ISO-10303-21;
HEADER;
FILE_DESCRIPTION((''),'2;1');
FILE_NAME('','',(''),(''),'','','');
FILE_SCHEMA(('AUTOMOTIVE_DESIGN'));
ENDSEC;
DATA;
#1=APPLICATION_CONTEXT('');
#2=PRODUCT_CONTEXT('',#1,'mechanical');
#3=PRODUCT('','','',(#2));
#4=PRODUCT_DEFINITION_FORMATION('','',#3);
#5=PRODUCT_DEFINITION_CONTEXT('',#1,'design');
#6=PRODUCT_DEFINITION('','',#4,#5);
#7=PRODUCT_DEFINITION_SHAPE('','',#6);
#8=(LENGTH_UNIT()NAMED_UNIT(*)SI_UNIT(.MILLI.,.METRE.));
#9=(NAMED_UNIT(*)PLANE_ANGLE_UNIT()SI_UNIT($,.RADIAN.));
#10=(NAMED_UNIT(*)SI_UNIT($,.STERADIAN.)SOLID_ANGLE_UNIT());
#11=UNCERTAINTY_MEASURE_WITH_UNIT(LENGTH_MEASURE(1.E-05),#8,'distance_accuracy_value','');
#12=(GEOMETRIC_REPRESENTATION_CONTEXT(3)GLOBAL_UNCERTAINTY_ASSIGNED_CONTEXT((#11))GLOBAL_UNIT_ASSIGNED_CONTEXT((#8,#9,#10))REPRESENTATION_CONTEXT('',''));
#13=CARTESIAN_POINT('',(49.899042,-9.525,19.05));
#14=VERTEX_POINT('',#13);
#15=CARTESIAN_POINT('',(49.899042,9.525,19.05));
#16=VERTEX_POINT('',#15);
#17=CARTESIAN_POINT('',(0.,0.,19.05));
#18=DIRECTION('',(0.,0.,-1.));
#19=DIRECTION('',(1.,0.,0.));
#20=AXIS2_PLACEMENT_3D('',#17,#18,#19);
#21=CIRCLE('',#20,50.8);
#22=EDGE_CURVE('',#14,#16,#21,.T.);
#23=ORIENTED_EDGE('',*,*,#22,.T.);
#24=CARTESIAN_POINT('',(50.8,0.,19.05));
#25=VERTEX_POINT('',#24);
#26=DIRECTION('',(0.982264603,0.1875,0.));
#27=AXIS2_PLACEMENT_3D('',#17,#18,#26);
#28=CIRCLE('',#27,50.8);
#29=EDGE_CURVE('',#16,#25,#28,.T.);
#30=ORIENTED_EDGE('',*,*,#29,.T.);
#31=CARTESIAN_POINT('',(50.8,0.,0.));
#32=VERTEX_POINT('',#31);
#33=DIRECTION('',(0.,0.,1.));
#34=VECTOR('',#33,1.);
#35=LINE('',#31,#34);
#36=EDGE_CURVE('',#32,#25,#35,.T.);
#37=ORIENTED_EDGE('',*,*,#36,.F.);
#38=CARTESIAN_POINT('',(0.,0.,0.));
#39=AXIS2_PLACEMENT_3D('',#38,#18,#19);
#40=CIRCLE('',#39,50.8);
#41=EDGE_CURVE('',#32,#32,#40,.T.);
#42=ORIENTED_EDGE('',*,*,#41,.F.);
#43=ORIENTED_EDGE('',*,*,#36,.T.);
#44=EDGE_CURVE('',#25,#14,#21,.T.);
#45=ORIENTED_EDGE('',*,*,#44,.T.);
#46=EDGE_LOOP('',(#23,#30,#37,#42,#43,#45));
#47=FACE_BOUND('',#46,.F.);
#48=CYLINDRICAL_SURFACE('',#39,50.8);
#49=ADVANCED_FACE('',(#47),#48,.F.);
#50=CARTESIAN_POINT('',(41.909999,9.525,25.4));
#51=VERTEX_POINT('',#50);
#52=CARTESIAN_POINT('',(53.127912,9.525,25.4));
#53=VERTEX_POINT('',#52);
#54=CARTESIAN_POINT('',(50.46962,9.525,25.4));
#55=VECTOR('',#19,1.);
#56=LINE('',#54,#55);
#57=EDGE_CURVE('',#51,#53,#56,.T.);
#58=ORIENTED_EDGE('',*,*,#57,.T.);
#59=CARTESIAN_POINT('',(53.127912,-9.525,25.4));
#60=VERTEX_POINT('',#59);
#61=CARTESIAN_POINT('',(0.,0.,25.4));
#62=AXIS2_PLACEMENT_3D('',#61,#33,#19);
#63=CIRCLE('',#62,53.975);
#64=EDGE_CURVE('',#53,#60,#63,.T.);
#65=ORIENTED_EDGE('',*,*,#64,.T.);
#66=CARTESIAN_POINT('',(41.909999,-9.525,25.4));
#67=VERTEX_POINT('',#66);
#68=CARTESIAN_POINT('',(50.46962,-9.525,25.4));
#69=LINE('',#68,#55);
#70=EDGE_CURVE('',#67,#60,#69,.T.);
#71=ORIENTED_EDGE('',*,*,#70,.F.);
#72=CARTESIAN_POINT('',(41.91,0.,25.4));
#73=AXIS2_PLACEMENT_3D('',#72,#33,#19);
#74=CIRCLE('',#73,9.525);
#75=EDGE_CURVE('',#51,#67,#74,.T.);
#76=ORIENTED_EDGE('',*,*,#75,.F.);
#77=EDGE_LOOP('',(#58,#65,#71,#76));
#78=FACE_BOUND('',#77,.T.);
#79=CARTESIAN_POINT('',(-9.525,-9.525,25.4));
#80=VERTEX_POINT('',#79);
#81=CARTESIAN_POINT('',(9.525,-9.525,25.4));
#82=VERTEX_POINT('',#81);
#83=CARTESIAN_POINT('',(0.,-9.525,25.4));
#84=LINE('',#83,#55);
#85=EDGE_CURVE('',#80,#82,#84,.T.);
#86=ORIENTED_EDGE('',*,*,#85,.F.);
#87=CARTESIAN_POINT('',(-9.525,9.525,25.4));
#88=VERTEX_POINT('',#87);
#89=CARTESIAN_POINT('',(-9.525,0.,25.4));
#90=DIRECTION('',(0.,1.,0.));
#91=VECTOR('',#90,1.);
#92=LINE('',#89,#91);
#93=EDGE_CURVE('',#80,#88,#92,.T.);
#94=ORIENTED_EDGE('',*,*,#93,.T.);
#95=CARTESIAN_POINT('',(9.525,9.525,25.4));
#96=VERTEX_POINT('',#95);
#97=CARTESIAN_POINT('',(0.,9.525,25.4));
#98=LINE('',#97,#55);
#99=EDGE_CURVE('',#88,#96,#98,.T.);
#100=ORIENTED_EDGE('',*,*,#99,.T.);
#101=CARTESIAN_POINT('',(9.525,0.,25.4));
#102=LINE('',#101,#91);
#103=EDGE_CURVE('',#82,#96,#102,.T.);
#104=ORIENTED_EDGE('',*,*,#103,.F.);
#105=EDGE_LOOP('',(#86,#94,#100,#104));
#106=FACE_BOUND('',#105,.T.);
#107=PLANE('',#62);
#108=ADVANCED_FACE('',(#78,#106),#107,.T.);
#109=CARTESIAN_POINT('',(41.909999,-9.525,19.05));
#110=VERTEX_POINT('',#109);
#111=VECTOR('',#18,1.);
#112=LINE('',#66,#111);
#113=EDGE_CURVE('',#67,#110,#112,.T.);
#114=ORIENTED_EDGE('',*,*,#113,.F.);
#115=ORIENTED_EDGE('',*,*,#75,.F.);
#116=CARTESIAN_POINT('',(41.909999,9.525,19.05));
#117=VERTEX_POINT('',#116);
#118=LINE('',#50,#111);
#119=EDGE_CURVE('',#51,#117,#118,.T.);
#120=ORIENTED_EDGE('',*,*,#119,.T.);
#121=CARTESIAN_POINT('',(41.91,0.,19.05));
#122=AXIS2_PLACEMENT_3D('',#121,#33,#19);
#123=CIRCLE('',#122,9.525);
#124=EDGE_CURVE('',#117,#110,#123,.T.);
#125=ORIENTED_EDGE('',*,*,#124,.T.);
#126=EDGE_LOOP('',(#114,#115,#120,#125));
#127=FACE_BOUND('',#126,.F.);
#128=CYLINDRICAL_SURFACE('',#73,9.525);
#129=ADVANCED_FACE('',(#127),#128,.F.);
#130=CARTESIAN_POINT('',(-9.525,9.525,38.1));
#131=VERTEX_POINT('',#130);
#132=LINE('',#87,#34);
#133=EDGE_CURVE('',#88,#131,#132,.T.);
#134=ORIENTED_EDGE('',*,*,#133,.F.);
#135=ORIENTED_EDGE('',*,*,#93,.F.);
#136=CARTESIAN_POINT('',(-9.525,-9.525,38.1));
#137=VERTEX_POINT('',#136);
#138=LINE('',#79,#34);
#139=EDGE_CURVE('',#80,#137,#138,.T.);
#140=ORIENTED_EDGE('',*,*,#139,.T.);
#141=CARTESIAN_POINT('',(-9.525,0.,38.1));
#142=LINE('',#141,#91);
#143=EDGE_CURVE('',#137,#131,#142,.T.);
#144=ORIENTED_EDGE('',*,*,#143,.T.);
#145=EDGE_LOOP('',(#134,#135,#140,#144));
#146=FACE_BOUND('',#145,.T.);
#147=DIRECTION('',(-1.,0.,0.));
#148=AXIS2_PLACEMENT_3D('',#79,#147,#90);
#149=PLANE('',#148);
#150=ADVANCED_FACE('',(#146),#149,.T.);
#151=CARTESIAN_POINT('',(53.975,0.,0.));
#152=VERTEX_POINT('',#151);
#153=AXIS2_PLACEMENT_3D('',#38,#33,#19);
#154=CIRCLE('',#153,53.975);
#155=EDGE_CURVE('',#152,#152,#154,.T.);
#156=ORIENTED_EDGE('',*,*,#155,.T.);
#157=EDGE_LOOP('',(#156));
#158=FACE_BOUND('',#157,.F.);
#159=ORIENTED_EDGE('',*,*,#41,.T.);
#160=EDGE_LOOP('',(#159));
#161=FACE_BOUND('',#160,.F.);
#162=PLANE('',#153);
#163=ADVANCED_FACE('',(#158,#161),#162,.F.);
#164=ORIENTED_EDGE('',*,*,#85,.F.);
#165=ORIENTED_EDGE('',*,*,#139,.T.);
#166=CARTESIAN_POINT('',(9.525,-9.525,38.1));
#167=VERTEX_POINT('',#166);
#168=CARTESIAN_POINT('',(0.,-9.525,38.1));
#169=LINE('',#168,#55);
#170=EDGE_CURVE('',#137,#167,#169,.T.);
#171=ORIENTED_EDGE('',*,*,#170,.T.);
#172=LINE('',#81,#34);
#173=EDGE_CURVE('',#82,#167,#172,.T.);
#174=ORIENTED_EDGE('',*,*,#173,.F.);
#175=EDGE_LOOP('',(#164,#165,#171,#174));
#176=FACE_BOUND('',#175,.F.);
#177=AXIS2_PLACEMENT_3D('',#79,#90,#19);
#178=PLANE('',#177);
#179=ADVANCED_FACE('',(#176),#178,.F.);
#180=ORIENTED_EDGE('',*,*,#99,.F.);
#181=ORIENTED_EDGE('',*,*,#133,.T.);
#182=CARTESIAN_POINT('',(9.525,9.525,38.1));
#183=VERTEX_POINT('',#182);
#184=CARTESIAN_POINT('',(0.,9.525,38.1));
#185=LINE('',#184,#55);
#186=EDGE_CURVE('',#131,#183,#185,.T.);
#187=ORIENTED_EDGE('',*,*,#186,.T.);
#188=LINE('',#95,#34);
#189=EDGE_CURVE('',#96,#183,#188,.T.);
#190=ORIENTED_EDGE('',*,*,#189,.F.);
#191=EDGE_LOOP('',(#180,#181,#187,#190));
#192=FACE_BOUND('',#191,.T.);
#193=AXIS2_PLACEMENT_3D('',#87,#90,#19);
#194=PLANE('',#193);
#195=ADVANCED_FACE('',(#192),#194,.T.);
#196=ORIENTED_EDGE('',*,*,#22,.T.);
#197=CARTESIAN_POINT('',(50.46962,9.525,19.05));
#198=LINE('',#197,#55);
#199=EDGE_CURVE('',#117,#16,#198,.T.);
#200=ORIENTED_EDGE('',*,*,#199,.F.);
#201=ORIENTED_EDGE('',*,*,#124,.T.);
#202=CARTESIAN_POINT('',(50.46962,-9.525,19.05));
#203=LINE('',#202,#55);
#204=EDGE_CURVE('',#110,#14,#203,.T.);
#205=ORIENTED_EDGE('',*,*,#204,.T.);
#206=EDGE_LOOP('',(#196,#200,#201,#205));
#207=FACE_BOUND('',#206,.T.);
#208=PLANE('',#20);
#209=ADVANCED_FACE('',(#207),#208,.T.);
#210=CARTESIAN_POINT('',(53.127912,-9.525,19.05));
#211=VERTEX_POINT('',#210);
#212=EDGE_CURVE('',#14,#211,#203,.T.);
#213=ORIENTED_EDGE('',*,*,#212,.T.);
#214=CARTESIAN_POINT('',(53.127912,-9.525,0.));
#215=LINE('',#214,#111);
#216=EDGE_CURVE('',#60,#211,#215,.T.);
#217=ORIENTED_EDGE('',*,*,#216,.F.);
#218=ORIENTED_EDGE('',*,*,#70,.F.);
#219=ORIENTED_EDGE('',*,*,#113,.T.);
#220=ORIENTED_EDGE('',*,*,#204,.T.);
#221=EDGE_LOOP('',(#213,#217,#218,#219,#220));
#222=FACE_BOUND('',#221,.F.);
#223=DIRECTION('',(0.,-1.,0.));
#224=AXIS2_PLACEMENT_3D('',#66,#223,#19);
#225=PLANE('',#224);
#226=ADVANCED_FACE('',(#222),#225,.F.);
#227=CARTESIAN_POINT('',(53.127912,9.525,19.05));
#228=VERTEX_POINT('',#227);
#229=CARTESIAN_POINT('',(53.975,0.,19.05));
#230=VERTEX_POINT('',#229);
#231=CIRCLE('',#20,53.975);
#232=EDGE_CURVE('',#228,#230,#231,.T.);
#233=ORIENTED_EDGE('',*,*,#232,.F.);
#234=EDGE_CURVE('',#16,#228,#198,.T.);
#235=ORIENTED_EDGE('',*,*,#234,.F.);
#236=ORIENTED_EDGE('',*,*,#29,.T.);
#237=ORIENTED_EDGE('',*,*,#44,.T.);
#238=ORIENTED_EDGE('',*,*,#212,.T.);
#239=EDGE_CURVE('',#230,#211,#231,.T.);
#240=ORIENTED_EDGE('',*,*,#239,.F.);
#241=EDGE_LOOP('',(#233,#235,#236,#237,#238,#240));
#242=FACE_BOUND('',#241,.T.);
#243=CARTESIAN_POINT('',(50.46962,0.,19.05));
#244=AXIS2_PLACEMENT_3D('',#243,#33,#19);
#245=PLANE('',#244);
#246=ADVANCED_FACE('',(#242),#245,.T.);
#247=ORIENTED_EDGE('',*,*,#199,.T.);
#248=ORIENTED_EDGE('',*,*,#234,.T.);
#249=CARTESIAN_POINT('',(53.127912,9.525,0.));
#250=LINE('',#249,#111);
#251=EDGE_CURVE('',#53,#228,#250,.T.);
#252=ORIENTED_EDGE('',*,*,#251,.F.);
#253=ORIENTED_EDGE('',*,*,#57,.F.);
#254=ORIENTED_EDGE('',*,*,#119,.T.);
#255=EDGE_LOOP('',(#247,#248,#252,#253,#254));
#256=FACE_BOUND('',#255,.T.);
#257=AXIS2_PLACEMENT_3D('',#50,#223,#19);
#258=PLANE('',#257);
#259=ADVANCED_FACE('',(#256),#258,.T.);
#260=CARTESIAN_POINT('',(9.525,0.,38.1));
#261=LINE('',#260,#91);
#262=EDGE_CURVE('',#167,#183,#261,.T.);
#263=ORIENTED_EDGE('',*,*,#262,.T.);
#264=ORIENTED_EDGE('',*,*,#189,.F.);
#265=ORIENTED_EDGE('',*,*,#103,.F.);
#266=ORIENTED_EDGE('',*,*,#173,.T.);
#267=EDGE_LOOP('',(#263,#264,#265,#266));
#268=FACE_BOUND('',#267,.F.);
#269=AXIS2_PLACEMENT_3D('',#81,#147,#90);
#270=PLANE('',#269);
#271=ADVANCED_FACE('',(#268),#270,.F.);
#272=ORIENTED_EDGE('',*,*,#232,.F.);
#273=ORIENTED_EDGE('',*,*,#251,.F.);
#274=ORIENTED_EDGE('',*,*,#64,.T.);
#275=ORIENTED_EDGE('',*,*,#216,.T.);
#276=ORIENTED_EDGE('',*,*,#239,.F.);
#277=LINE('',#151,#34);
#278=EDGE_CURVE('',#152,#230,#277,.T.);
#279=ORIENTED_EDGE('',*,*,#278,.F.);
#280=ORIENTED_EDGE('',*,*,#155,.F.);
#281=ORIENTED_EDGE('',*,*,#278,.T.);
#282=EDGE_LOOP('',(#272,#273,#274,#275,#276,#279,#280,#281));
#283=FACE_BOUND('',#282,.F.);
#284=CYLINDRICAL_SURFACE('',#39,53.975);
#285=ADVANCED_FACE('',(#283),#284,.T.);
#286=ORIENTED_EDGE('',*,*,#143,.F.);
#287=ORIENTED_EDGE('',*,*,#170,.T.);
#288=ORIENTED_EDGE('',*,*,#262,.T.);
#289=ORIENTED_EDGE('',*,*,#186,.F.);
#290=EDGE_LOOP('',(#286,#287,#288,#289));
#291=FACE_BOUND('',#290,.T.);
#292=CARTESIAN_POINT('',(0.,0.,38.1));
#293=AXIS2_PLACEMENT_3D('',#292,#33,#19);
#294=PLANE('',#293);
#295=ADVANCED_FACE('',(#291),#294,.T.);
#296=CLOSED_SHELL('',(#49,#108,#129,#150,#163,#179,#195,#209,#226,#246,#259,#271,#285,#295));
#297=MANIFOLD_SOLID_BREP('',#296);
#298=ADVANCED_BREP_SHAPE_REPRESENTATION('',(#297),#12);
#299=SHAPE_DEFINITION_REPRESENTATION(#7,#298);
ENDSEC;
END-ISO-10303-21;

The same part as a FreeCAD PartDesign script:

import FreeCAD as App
import Part
import Sketcher
Q = App.Units.Quantity

doc = App.newDocument("Part")
body = doc.addObject("PartDesign::Body", "Body")

# Sketch on XY plane
sketch1 = body.newObject("Sketcher::SketchObject", "Sketch")
sketch1.AttachmentSupport = (doc.getObject("XY_Plane"), [""])
sketch1.MapMode = "FlatFace"
sketch1.addGeometry(Part.Circle(App.Vector(0, 0, 0), App.Vector(0, 0, 1), 54), False)
sketch1.addConstraint([
    Sketcher.Constraint("Coincident", 0, 3, -1, 1),
    Sketcher.Constraint("Diameter", 0, Q("4.25 in")),
])
pad1 = body.newObject("PartDesign::Pad", "Pad")
pad1.Profile = sketch1
pad1.Length = Q("1 in")

# Sketch on XY plane
sketch2 = body.newObject("Sketcher::SketchObject", "Sketch001")
sketch2.AttachmentSupport = (doc.getObject("XY_Plane"), [""])
sketch2.MapMode = "FlatFace"
sketch2.addGeometry(Part.Circle(App.Vector(0, 0, 0), App.Vector(0, 0, 1), 51), False)
sketch2.addConstraint([
    Sketcher.Constraint("Coincident", 0, 3, -1, 1),
    Sketcher.Constraint("Diameter", 0, Q("4 in")),
])
pocket1 = body.newObject("PartDesign::Pocket", "Pocket")
pocket1.Profile = sketch2
pocket1.Length = Q("0.75 in")
pocket1.Reversed = True

# Sketch on XY plane
sketch3 = body.newObject("Sketcher::SketchObject", "Sketch002")
sketch3.AttachmentSupport = (doc.getObject("XY_Plane"), [""])
sketch3.MapMode = "FlatFace"
sketch3.AttachmentOffset = App.Placement(App.Vector(0, 0, 1 * 25.4), App.Rotation())
sketch3.addGeometry([
    Part.LineSegment(App.Vector(-10, 10, 0), App.Vector(-10, -10, 0)),
    Part.LineSegment(App.Vector(-10, -10, 0), App.Vector(10, -10, 0)),
    Part.LineSegment(App.Vector(10, -10, 0), App.Vector(10, 10, 0)),
    Part.LineSegment(App.Vector(10, 10, 0), App.Vector(-10, 10, 0)),
], False)
sketch3.addConstraint([
    Sketcher.Constraint("Coincident", 0, 2, 1, 1),
    Sketcher.Constraint("Coincident", 1, 2, 2, 1),
    Sketcher.Constraint("Coincident", 2, 2, 3, 1),
    Sketcher.Constraint("Coincident", 3, 2, 0, 1),
    Sketcher.Constraint("Vertical", 0),
    Sketcher.Constraint("Horizontal", 1),
    Sketcher.Constraint("Vertical", 2),
    Sketcher.Constraint("Horizontal", 3),
    Sketcher.Constraint("Symmetric", 0, 2, 2, 2, -1, 1),
    Sketcher.Constraint("Equal", 3, 0),
    Sketcher.Constraint("DistanceX", 1, 1, 1, 2, Q("0.75 in")),
])
pad2 = body.newObject("PartDesign::Pad", "Pad001")
pad2.Profile = sketch3
pad2.Length = Q("0.5 in")

# Sketch on XY plane
sketch4 = body.newObject("Sketcher::SketchObject", "Sketch003")
sketch4.AttachmentSupport = (doc.getObject("XY_Plane"), [""])
sketch4.MapMode = "FlatFace"
sketch4.AttachmentOffset = App.Placement(App.Vector(0, 0, 1 * 25.4), App.Rotation())
sketch4.addGeometry(Part.Circle(App.Vector(42, 0, 0), App.Vector(0, 0, 1), 10), False)
sketch4.addConstraint([
    Sketcher.Constraint("PointOnObject", 0, 3, -1),
    Sketcher.Constraint("Diameter", 0, Q("0.75 in")),
    Sketcher.Constraint("DistanceX", -1, 1, 0, 3, Q("1.65 in")),
])
pocket2 = body.newObject("PartDesign::Pocket", "Pocket001")
pocket2.Profile = sketch4
pocket2.Length = Q("0.25 in")

# Sketch on XY plane
sketch5 = body.newObject("Sketcher::SketchObject", "Sketch004")
sketch5.AttachmentSupport = (doc.getObject("XY_Plane"), [""])
sketch5.MapMode = "FlatFace"
sketch5.AttachmentOffset = App.Placement(App.Vector(0, 0, 1 * 25.4), App.Rotation())
sketch5.addGeometry([
    Part.LineSegment(App.Vector(42, 10, 0), App.Vector(42, -10, 0)),
    Part.LineSegment(App.Vector(42, -10, 0), App.Vector(59, -10, 0)),
    Part.LineSegment(App.Vector(59, -10, 0), App.Vector(59, 10, 0)),
    Part.LineSegment(App.Vector(59, 10, 0), App.Vector(42, 10, 0)),
], False)
sketch5.addConstraint([
    Sketcher.Constraint("Coincident", 0, 2, 1, 1),
    Sketcher.Constraint("Coincident", 1, 2, 2, 1),
    Sketcher.Constraint("Coincident", 2, 2, 3, 1),
    Sketcher.Constraint("Coincident", 3, 2, 0, 1),
    Sketcher.Constraint("Vertical", 0),
    Sketcher.Constraint("Horizontal", 1),
    Sketcher.Constraint("Vertical", 2),
    Sketcher.Constraint("Horizontal", 3),
    Sketcher.Constraint("DistanceY", 0, 2, 0, 1, Q("0.75 in")),
    Sketcher.Constraint("DistanceX", -1, 1, 0, 2, Q("1.65 in")),
    Sketcher.Constraint("DistanceY", 0, 2, -1, 1, Q("0.375 in")),
    Sketcher.Constraint("DistanceX", 1, 1, 1, 2, Q("17.119241 mm")),
])
pocket3 = body.newObject("PartDesign::Pocket", "Pocket002")
pocket3.Profile = sketch5
pocket3.Length = Q("0.25 in")

doc.recompute()
